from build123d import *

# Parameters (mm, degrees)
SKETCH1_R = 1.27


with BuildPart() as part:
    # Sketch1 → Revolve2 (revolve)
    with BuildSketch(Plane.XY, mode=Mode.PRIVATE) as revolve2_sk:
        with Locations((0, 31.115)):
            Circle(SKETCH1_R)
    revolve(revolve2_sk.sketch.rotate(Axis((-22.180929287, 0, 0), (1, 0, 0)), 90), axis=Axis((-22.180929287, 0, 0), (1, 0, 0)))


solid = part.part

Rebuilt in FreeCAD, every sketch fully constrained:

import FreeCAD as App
import Part
import Sketcher
Q = App.Units.Quantity

doc = App.newDocument("Part")
params = doc.addObject("Spreadsheet::Sheet", "Params")
for row, (alias, value) in enumerate([
    ("sketch1_diameter", "0.1 in"),
    ("revolution_angle", "360 deg"),
], start=1):
    params.set(f"A{row}", alias)
    params.set(f"B{row}", "=" + value)
    params.setAlias(f"B{row}", alias)

body = doc.addObject("PartDesign::Body", "Body")

# Sketch on XY plane
sketch1 = body.newObject("Sketcher::SketchObject", "Sketch")
sketch1.AttachmentSupport = (doc.getObject("XY_Plane"), [""])
sketch1.MapMode = "FlatFace"
sketch1.addGeometry(Part.Circle(App.Vector(0, 31.1, 0), App.Vector(0, 0, 1), 1.3), False)
sketch1.addConstraint([
    Sketcher.Constraint("PointOnObject", 0, 3, -2),
    Sketcher.Constraint("Diameter", 0, Q("0.1 in")),
    Sketcher.Constraint("DistanceY", -1, 1, 0, 3, Q("1.225 in")),
])
sketch1.setExpression("Constraints[1]", "Params.sketch1_diameter")
revolution = body.newObject("PartDesign::Revolution", "Revolution")
revolution.Profile = sketch1
revolution.ReferenceAxis = (sketch1, ["H_Axis"])
revolution.setExpression("Angle", "Params.revolution_angle")

doc.recompute()
